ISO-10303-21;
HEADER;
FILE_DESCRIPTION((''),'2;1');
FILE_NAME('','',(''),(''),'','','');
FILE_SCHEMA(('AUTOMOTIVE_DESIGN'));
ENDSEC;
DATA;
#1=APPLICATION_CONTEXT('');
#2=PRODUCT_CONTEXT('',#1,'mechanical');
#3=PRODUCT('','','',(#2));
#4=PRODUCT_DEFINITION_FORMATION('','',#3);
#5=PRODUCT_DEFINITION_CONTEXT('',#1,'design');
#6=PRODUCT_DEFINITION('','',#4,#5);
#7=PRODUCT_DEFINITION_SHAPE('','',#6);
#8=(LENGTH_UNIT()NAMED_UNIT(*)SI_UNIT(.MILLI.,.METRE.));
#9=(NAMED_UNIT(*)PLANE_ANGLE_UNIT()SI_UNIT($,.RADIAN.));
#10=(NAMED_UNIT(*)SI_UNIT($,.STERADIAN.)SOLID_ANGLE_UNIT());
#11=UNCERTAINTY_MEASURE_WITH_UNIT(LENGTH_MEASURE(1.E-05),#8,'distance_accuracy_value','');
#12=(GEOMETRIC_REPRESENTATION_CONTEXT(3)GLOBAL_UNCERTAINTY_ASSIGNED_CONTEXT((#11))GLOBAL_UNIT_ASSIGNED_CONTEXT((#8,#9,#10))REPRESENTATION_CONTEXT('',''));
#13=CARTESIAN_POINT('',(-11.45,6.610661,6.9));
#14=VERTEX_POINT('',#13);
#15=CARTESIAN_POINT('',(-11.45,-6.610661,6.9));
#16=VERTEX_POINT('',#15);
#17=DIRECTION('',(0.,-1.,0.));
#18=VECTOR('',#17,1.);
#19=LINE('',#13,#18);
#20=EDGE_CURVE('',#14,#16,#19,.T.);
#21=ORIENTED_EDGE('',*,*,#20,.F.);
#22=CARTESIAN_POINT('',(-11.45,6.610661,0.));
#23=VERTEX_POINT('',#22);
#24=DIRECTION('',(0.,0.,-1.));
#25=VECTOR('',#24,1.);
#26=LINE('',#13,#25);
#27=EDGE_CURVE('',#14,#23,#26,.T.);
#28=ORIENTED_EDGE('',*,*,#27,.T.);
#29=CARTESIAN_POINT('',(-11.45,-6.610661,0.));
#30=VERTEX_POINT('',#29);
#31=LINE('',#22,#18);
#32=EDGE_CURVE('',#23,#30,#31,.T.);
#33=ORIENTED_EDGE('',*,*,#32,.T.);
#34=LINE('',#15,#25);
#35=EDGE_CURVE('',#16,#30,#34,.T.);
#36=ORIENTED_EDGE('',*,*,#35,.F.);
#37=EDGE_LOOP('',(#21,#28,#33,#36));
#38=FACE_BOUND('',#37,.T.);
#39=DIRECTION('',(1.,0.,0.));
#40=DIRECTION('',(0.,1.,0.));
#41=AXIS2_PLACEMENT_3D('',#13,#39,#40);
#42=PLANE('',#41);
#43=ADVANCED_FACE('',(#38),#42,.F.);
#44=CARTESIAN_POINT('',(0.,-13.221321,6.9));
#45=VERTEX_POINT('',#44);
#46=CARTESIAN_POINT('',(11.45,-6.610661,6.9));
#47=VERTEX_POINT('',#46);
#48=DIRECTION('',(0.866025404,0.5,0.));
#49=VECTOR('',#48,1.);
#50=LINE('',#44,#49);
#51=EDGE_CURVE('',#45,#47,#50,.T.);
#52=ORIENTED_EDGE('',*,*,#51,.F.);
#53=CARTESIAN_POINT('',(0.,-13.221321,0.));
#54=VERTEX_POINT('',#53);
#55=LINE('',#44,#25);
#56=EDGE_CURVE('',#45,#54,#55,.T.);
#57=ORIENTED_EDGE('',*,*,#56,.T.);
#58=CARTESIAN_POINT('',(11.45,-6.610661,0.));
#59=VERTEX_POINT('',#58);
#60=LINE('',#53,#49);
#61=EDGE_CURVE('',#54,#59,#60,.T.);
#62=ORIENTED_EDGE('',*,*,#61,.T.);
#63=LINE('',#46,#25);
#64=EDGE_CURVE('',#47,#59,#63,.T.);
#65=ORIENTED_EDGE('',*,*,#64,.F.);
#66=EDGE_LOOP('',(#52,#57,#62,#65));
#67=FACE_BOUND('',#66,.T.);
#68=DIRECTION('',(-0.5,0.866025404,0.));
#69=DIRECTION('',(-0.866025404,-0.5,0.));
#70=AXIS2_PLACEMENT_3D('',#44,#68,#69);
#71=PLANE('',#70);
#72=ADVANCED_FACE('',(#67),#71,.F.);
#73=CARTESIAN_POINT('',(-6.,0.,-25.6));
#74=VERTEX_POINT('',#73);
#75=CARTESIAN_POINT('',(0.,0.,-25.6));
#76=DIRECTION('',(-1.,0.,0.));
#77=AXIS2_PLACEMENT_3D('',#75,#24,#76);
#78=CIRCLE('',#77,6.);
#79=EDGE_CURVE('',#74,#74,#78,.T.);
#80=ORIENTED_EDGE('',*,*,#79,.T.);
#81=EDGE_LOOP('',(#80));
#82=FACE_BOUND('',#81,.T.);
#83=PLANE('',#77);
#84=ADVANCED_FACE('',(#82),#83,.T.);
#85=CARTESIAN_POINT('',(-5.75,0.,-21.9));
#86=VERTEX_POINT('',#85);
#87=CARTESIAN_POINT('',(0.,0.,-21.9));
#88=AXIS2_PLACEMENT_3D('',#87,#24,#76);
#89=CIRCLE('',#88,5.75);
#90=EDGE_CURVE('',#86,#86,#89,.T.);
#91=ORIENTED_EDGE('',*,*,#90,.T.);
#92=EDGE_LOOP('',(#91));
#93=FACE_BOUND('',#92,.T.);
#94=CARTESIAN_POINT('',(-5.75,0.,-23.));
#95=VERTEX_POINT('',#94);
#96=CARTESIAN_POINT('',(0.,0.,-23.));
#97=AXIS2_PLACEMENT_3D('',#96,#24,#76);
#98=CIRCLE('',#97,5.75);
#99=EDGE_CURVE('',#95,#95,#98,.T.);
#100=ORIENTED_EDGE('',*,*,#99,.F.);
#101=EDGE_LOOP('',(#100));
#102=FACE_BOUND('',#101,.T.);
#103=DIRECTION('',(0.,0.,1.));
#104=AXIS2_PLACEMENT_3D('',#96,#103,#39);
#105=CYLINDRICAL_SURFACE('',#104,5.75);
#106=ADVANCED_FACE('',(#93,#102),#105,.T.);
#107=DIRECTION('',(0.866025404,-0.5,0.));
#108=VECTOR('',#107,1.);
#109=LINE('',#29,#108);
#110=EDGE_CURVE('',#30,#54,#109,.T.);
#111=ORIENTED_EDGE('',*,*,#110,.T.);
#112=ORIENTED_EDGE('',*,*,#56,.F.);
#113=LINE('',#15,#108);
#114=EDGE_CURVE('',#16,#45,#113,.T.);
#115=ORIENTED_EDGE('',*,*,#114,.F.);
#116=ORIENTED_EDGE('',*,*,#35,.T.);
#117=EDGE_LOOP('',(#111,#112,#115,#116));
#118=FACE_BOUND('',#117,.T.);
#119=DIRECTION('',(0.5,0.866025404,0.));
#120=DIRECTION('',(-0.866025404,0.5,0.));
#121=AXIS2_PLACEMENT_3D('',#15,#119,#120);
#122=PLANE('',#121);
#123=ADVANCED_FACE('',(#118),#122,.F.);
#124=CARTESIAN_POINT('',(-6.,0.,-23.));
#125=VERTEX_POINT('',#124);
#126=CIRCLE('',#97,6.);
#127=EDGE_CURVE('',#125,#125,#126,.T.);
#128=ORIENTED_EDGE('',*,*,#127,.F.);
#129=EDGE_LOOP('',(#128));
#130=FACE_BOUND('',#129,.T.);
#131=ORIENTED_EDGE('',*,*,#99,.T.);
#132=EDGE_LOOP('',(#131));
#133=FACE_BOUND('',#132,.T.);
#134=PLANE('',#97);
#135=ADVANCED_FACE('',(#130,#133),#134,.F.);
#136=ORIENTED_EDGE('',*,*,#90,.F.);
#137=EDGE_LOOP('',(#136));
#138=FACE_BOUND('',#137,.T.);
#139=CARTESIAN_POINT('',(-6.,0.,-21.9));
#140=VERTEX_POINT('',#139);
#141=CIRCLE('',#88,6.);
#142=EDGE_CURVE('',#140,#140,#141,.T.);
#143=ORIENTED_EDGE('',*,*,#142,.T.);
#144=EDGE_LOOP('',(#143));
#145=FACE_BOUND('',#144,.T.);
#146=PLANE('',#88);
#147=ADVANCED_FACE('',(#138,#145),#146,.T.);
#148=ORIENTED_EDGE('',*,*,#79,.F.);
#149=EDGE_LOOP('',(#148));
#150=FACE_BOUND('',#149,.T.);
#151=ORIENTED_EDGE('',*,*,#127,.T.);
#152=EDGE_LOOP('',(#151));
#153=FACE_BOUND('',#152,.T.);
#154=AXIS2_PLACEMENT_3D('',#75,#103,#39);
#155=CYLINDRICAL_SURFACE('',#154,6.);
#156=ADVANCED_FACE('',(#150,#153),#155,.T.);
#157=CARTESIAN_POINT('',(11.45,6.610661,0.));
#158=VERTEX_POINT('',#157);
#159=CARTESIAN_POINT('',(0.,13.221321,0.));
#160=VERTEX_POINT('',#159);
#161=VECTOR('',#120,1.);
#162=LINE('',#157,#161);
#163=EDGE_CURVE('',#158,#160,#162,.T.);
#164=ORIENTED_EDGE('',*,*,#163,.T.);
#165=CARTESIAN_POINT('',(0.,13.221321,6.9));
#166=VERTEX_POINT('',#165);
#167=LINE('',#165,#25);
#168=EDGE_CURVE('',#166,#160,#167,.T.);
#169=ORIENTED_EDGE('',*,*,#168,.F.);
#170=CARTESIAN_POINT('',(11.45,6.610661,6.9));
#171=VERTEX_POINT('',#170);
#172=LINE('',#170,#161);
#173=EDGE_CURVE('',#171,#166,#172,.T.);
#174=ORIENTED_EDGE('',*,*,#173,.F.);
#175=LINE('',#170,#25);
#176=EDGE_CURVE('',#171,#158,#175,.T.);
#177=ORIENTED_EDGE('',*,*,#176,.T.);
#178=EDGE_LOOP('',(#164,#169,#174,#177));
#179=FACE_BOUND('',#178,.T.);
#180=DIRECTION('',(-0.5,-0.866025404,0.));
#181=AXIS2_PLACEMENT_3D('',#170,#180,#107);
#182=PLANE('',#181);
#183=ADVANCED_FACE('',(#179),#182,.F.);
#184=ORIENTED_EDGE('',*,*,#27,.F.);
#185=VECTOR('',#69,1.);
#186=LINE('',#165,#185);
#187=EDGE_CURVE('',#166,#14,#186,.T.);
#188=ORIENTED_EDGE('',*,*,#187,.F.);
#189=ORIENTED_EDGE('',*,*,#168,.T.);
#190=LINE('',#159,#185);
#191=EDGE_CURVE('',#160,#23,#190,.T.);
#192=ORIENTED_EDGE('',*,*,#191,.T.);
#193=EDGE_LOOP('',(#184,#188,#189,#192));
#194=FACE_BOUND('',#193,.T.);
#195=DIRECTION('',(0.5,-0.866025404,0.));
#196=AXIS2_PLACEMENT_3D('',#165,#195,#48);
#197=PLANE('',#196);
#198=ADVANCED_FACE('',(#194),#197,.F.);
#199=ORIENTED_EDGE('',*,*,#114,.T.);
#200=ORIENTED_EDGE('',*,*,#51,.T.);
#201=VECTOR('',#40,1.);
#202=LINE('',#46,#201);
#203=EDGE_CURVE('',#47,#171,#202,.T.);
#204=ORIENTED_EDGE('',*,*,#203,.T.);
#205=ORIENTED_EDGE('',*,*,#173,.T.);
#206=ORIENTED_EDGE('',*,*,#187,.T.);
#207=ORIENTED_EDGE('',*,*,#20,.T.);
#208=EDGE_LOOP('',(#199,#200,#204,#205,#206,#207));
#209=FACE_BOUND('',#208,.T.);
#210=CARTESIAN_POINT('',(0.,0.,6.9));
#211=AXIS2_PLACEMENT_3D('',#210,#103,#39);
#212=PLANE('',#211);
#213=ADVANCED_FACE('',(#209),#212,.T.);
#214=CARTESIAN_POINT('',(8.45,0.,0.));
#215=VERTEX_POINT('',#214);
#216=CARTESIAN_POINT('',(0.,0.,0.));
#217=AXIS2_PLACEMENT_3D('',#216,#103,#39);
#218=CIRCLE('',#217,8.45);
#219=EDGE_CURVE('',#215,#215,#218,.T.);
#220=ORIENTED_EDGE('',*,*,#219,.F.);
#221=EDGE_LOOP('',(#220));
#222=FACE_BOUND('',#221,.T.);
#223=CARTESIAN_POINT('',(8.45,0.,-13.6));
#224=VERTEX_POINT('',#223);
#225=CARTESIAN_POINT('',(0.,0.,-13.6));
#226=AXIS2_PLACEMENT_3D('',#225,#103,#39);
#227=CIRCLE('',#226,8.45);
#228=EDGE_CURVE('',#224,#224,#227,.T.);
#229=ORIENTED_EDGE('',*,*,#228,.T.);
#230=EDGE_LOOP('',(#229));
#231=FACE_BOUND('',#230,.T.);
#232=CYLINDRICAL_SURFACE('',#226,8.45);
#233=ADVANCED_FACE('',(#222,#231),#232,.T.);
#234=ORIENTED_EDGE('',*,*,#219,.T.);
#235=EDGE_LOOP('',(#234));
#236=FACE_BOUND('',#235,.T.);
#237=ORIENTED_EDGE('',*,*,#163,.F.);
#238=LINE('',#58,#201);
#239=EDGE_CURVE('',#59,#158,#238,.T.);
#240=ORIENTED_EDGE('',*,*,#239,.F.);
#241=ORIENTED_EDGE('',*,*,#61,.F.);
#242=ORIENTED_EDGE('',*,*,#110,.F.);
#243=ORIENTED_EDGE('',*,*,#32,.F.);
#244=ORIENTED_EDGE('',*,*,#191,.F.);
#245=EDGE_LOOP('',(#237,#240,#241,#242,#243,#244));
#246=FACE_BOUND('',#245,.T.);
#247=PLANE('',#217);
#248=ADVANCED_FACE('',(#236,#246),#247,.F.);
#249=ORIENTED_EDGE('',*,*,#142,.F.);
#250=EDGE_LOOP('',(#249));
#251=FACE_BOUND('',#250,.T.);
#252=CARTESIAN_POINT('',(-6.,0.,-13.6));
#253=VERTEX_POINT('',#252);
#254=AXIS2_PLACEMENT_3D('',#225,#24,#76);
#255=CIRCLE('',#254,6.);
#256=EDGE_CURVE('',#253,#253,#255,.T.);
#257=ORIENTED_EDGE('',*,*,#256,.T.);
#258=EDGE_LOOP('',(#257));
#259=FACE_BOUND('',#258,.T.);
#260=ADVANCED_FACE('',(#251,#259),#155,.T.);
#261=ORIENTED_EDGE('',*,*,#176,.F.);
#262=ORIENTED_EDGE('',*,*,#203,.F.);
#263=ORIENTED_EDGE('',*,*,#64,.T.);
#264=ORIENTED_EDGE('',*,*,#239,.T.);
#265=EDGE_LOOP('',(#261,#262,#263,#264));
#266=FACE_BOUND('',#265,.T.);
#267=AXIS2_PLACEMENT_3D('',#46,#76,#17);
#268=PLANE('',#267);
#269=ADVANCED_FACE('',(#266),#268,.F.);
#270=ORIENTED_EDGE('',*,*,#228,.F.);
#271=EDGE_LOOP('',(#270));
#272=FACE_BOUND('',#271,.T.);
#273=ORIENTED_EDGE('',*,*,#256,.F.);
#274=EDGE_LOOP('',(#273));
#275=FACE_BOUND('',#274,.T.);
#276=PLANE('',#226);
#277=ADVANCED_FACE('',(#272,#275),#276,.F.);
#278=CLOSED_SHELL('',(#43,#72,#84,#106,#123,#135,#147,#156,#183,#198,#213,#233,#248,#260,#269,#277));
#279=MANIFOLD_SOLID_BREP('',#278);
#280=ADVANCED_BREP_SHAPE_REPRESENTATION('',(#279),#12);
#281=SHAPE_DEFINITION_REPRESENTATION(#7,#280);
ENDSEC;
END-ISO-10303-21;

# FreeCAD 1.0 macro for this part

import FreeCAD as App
import Part
import Sketcher

V = App.Vector
Q = App.Units.Quantity


def add_polygon(sketch, points):
    """Adds a closed chain of lines whose ends are joined by coincident constraints."""
    first, n = sketch.GeometryCount, len(points)
    for a, b in zip(points, points[1:] + points[:1]):
        sketch.addGeometry(Part.LineSegment(App.Vector(*a, 0), App.Vector(*b, 0)), False)
    for i in range(n):
        sketch.addConstraint(Sketcher.Constraint("Coincident", first + i, 2, first + (i + 1) % n, 1))

doc = App.newDocument("Part")
body = doc.addObject("PartDesign::Body", "Body")

# Sketch on XY plane
sketch1 = body.newObject("Sketcher::SketchObject", "Sketch")
sketch1.AttachmentSupport = (doc.getObject("XY_Plane"), [""])
sketch1.MapMode = "FlatFace"
sketch1.addGeometry(Part.Circle(V(0, 0, 0), V(0, 0, 1), 8), False)
sketch1.addConstraint([
    Sketcher.Constraint("Coincident", 0, 3, -1, 1),
    Sketcher.Constraint("Diameter", 0, Q("16.9 mm")),
])
pad1 = body.newObject("PartDesign::Pad", "Pad")
pad1.Profile = sketch1
pad1.Length = 13.6
pad1.Reversed = True

# Sketch on XY plane
sketch2 = body.newObject("Sketcher::SketchObject", "Sketch001")
sketch2.AttachmentSupport = (doc.getObject("XY_Plane"), [""])
sketch2.MapMode = "FlatFace"
add_polygon(sketch2, [(0, 13), (-11, 7), (-11, -7), (0, -13), (11, -7), (11, 7)])  # lines 0-5
sketch2.addConstraint([
    Sketcher.Constraint("Vertical", 1),
    Sketcher.Constraint("Vertical", 4),
    Sketcher.Constraint("Symmetric", 0, 2, 3, 2, -1, 1),
    Sketcher.Constraint("Symmetric", 2, 2, 5, 2, -1, 1),
    Sketcher.Constraint("PointOnObject", 2, 2, -2),
    Sketcher.Constraint("Parallel", 2, 5),
    Sketcher.Constraint("Horizontal", 1, 2, 3, 2),
    Sketcher.Constraint("Angle", 0, Q("-150 deg")),
    Sketcher.Constraint("DistanceX", 1, 2, 3, 2, Q("22.9 mm")),
    Sketcher.Constraint("DistanceY", 1, 2, 1, 1, Q("13.221321 mm")),
])
pad2 = body.newObject("PartDesign::Pad", "Pad001")
pad2.Profile = sketch2
pad2.Length = 6.9

# Sketch on XY plane
sketch3 = body.newObject("Sketcher::SketchObject", "Sketch002")
sketch3.AttachmentSupport = (doc.getObject("XY_Plane"), [""])
sketch3.MapMode = "FlatFace"
sketch3.AttachmentOffset = App.Placement(V(0, 0, -13.6), App.Rotation())
sketch3.addGeometry(Part.Circle(V(0, 0, 0), V(0, 0, 1), 6), False)
sketch3.addConstraint([
    Sketcher.Constraint("Coincident", 0, 3, -1, 1),
    Sketcher.Constraint("Diameter", 0, Q("12 mm")),
])
pad3 = body.newObject("PartDesign::Pad", "Pad002")
pad3.Profile = sketch3
pad3.Length = 12
pad3.Reversed = True

# Sketch on XY plane
sketch4 = body.newObject("Sketcher::SketchObject", "Sketch003")
sketch4.AttachmentSupport = (doc.getObject("XY_Plane"), [""])
sketch4.MapMode = "FlatFace"
sketch4.AttachmentOffset = App.Placement(V(0, 0, -21.9), App.Rotation())
sketch4.addGeometry([
    Part.Circle(V(0, 0, 0), V(0, 0, 1), 6),
    Part.Circle(V(0, 0, 0), V(0, 0, 1), 6),
], False)
sketch4.addConstraint([
    Sketcher.Constraint("Coincident", 0, 3, -1, 1),
    Sketcher.Constraint("Coincident", 1, 3, -1, 1),
    Sketcher.Constraint("Diameter", 0, Q("12 mm")),
    Sketcher.Constraint("Diameter", 1, Q("11.5 mm")),
])
pocket1 = body.newObject("PartDesign::Pocket", "Pocket")
pocket1.Profile = sketch4
pocket1.Length = 1.1

doc.recompute()
